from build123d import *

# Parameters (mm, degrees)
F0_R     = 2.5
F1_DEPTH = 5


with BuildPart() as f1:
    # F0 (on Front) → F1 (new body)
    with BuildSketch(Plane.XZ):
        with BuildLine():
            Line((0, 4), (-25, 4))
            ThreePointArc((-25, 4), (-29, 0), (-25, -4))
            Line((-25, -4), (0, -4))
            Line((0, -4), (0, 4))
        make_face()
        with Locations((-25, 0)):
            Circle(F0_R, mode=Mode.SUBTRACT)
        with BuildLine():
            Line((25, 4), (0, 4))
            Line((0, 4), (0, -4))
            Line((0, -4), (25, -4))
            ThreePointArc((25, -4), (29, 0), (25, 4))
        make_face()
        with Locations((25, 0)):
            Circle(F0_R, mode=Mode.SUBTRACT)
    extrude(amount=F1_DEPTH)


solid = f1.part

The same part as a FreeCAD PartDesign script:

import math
import FreeCAD as App
import Part
import Sketcher

V = App.Vector
Q = App.Units.Quantity

doc = App.newDocument("Part")
body = doc.addObject("PartDesign::Body", "Body")

# Sketch on XZ plane
sketch1 = doc.addObject("Sketcher::SketchObject", "Sketch")
body.addObject(sketch1)
sketch1.AttachmentSupport = (doc.XZ_Plane, [""])
sketch1.MapMode = "FlatFace"
sketch1.addGeometry([
    Part.ArcOfCircle(Part.Circle(V(-25, 0, 0), V(0, 0, 1), 4), math.radians(90), math.radians(270)),  # 0
    Part.LineSegment(V(-25, -4, 0), V(25, -4, 0)),  # 1
    Part.ArcOfCircle(Part.Circle(V(25, 0, 0), V(0, 0, 1), 4), math.radians(-90), math.radians(90)),  # 2
    Part.LineSegment(V(25, 4, 0), V(-25, 4, 0)),  # 3
    Part.Circle(V(-25, 0, 0), V(0, 0, 1), 2.5),  # 4
    Part.Circle(V(25, 0, 0), V(0, 0, 1), 2.5),  # 5
], False)
sketch1.addConstraint([
    Sketcher.Constraint("Tangent", 0, 2, 1, 1),
    Sketcher.Constraint("Tangent", 1, 2, 2, 1),
    Sketcher.Constraint("Tangent", 2, 2, 3, 1),
    Sketcher.Constraint("Tangent", 3, 2, 0, 1),
    Sketcher.Constraint("Horizontal", 1),
    Sketcher.Constraint("Horizontal", 3),
    Sketcher.Constraint("Coincident", 4, 3, 0, 3),
    Sketcher.Constraint("Coincident", 5, 3, 2, 3),
    Sketcher.Constraint("Equal", 4, 5),
    Sketcher.Constraint("Symmetric", 0, 3, 2, 3, -1, 1),
    Sketcher.Constraint("Diameter", 4, Q("5 mm")),
    Sketcher.Constraint("Radius", 0, Q("4 mm")),
    Sketcher.Constraint("DistanceX", 1, 1, 1, 2, Q("50 mm")),
])
pad1 = doc.addObject("PartDesign::Pad", "Pad")
body.addObject(pad1)
pad1.Profile = sketch1
pad1.Length = 5

doc.recompute()
